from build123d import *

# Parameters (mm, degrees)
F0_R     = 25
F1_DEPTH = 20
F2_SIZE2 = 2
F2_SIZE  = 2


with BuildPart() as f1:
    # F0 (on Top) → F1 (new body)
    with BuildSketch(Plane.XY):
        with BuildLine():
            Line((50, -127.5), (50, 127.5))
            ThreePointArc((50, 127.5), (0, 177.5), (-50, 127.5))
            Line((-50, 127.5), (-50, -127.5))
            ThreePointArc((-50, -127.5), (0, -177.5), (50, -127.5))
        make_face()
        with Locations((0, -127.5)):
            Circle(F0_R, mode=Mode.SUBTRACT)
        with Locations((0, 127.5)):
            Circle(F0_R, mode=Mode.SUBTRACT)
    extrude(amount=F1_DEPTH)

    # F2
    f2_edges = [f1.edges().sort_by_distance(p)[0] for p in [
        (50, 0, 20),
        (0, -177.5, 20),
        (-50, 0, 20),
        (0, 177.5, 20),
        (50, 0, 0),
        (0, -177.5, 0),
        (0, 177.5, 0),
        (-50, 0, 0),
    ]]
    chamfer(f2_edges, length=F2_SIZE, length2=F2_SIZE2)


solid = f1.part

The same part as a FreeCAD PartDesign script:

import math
import FreeCAD as App
import Part
import Sketcher

V = App.Vector
Q = App.Units.Quantity


def edges_at(feature, points):
    """Names of the edges that pass closest to the given points."""
    edges = feature.Shape.Edges
    near = lambda p: min(range(len(edges)), key=lambda i: edges[i].distToShape(Part.Vertex(*p))[0])
    return sorted({f"Edge{near(p) + 1}" for p in points})

doc = App.newDocument("Part")
body = doc.addObject("PartDesign::Body", "Body")

# Sketch on XY plane
sketch1 = body.newObject("Sketcher::SketchObject", "Sketch")
sketch1.AttachmentSupport = (doc.getObject("XY_Plane"), [""])
sketch1.MapMode = "FlatFace"
sketch1.addGeometry(Part.LineSegment(V(50, -128, 0), V(50, 128, 0)), False)
sketch1.addGeometry(Part.ArcOfCircle(Part.Circle(V(0, 128, 0), V(0, 0, 1), 50), math.radians(0), math.radians(180)), False)
sketch1.addGeometry(Part.LineSegment(V(-50, 128, 0), V(-50, -128, 0)), False)
sketch1.addGeometry(Part.ArcOfCircle(Part.Circle(V(0, -128, 0), V(0, 0, 1), 50), math.radians(180), math.radians(360)), False)
sketch1.addGeometry(Part.Circle(V(0, -128, 0), V(0, 0, 1), 25), False)
sketch1.addGeometry(Part.Circle(V(0, 128, 0), V(0, 0, 1), 25), False)
sketch1.addConstraint(Sketcher.Constraint("Tangent", 0, 2, 1, 1))
sketch1.addConstraint(Sketcher.Constraint("Tangent", 1, 2, 2, 1))
sketch1.addConstraint(Sketcher.Constraint("Tangent", 2, 2, 3, 1))
sketch1.addConstraint(Sketcher.Constraint("Tangent", 3, 2, 0, 1))
sketch1.addConstraint(Sketcher.Constraint("Vertical", 0))
sketch1.addConstraint(Sketcher.Constraint("Vertical", 2))
sketch1.addConstraint(Sketcher.Constraint("Coincident", 4, 3, 3, 3))
sketch1.addConstraint(Sketcher.Constraint("Coincident", 5, 3, 1, 3))
sketch1.addConstraint(Sketcher.Constraint("Equal", 4, 5))
sketch1.addConstraint(Sketcher.Constraint("Symmetric", 1, 3, 3, 3, -1, 1))
sketch1.addConstraint(Sketcher.Constraint("Diameter", 4, Q("50 mm")))
sketch1.addConstraint(Sketcher.Constraint("Radius", 1, Q("50 mm")))
sketch1.addConstraint(Sketcher.Constraint("DistanceY", 0, 1, 0, 2, Q("255 mm")))
pad1 = body.newObject("PartDesign::Pad", "Pad")
pad1.Profile = sketch1
pad1.Length = 20
doc.recompute()

chamfer = body.newObject("PartDesign::Chamfer", "Chamfer")
chamfer.Base = (pad1, edges_at(pad1, [
    (50, 0, 20),
    (0, -177.5, 20),
    (-50, 0, 20),
    (0, 177.5, 20),
    (50, 0, 0),
    (0, -177.5, 0),
    (0, 177.5, 0),
    (-50, 0, 0),
]))
chamfer.ChamferType = "Two distances"
chamfer.Size = 2
chamfer.Size2 = 2

doc.recompute()
